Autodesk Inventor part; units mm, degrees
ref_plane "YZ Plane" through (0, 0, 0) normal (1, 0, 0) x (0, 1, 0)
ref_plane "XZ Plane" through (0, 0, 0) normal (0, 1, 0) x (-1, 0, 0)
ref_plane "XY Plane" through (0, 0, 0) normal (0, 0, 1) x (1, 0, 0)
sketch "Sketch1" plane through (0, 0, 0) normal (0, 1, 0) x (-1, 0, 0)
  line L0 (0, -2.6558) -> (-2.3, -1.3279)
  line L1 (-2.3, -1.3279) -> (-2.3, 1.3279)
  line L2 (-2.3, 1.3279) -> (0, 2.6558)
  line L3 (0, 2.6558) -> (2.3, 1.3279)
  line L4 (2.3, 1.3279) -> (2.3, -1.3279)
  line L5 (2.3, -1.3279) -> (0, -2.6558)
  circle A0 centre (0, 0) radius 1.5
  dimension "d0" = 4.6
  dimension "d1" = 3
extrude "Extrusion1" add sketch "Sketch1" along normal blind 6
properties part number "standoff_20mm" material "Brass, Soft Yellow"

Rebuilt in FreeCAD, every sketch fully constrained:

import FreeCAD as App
import Part
import Sketcher
Q = App.Units.Quantity


def add_polygon(sketch, points):
    """Adds a closed chain of lines whose ends are joined by coincident constraints."""
    first, n = sketch.GeometryCount, len(points)
    for a, b in zip(points, points[1:] + points[:1]):
        sketch.addGeometry(Part.LineSegment(App.Vector(*a, 0), App.Vector(*b, 0)), False)
    for i in range(n):
        sketch.addConstraint(Sketcher.Constraint("Coincident", first + i, 2, first + (i + 1) % n, 1))

doc = App.newDocument("Part")
body = doc.addObject("PartDesign::Body", "Body")

# Sketch on XZ plane
sketch1 = body.newObject("Sketcher::SketchObject", "Sketch")
sketch1.AttachmentSupport = (doc.getObject("XZ_Plane"), [""])
sketch1.MapMode = "FlatFace"
add_polygon(sketch1, [(2.3, -1.3), (0, -2.7), (-2.3, -1.3), (-2.3, 1.3), (0, 2.7), (2.3, 1.3)])  # lines 0-5
sketch1.addGeometry(Part.Circle(App.Vector(0, 0, 0), App.Vector(0, 0, 1), 1.5), False)  # 6
sketch1.addConstraint(Sketcher.Constraint("Vertical", 2))
sketch1.addConstraint(Sketcher.Constraint("Vertical", 5))
sketch1.addConstraint(Sketcher.Constraint("Coincident", 6, 3, -1, 1))
sketch1.addConstraint(Sketcher.Constraint("Symmetric", 0, 2, 3, 2, -1, 1))
sketch1.addConstraint(Sketcher.Constraint("Symmetric", 1, 2, 4, 2, -1, 1))
sketch1.addConstraint(Sketcher.Constraint("PointOnObject", 0, 2, -2))
sketch1.addConstraint(Sketcher.Constraint("Parallel", 0, 3))
sketch1.addConstraint(Sketcher.Constraint("Horizontal", 2, 2, 4, 2))
sketch1.addConstraint(Sketcher.Constraint("Diameter", 6, 3.0))
sketch1.addConstraint(Sketcher.Constraint("DistanceX", 2, 2, 4, 2, 4.6))
sketch1.addConstraint(Sketcher.Constraint("Angle", 0, Q("-150 deg")))
sketch1.addConstraint(Sketcher.Constraint("DistanceY", 2, 1, 2, 2, 2.6558))
pad1 = body.newObject("PartDesign::Pad", "Pad")
pad1.Profile = sketch1
pad1.Length = 6
pad1.Reversed = True

doc.recompute()
